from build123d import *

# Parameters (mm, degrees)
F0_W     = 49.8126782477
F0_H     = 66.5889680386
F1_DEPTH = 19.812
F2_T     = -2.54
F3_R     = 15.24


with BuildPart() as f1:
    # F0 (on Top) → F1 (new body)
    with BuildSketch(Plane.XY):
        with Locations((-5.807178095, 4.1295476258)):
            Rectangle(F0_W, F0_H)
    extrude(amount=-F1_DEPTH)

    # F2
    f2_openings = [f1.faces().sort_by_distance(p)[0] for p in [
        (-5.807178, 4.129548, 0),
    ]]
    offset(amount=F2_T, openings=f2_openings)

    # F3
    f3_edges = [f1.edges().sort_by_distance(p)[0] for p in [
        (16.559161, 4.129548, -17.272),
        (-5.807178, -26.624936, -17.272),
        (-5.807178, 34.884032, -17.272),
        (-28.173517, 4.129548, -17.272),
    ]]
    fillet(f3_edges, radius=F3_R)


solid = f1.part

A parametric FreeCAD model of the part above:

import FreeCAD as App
import Part
import Sketcher
from FreeCAD import Vector


def edges_at(feature, points):
    """Names of the edges that pass closest to the given points."""
    edges = feature.Shape.Edges
    near = lambda p: min(range(len(edges)), key=lambda i: edges[i].distToShape(Part.Vertex(*p))[0])
    return sorted({f"Edge{near(p) + 1}" for p in points})


def faces_at(feature, points):
    """Names of the faces that lie closest to the given points."""
    faces = feature.Shape.Faces
    near = lambda p: min(range(len(faces)), key=lambda i: faces[i].distToShape(Part.Vertex(*p))[0])
    return sorted({f"Face{near(p) + 1}" for p in points})


def add_polygon(sketch, points):
    """Adds a closed chain of lines whose ends are joined by coincident constraints."""
    first, n = sketch.GeometryCount, len(points)
    for a, b in zip(points, points[1:] + points[:1]):
        sketch.addGeometry(Part.LineSegment(App.Vector(*a, 0), App.Vector(*b, 0)), False)
    for i in range(n):
        sketch.addConstraint(Sketcher.Constraint("Coincident", first + i, 2, first + (i + 1) % n, 1))

doc = App.newDocument("Part")
params = doc.addObject("Spreadsheet::Sheet", "Params")
for row, (alias, value) in enumerate([
    ("pad1_length", "0.78 in"),
    ("thickness_wall", "0.1 in"),
    ("fillet_radius", "0.6 in"),
], start=1):
    params.set(f"A{row}", alias)
    params.set(f"B{row}", "=" + value)
    params.setAlias(f"B{row}", alias)

body = doc.addObject("PartDesign::Body", "Body")

# Sketch on XY plane
sketch1 = body.newObject("Sketcher::SketchObject", "Sketch")
sketch1.AttachmentSupport = (doc.getObject("XY_Plane"), [""])
sketch1.MapMode = "FlatFace"
add_polygon(sketch1, [(-31, 37), (-31, -29), (19, -29), (19, 37)])  # lines 0-3
sketch1.addConstraint(Sketcher.Constraint("Vertical", 0))
sketch1.addConstraint(Sketcher.Constraint("Horizontal", 1))
sketch1.addConstraint(Sketcher.Constraint("Vertical", 2))
sketch1.addConstraint(Sketcher.Constraint("Horizontal", 3))
sketch1.addConstraint(Sketcher.Constraint("DistanceX", 1, 1, 1, 2, 49.812678))
sketch1.addConstraint(Sketcher.Constraint("DistanceY", 0, 2, 0, 1, 66.588968))
sketch1.addConstraint(Sketcher.Constraint("DistanceX", -1, 1, 1, 2, 19.099161))
sketch1.addConstraint(Sketcher.Constraint("DistanceY", -1, 1, 2, 2, 37.424032))
pad1 = body.newObject("PartDesign::Pad", "Pad")
pad1.Profile = sketch1
pad1.setExpression("Length", "Params.pad1_length")
pad1.Reversed = True
doc.recompute()

thickness = body.newObject("PartDesign::Thickness", "Thickness")
thickness.Base = (pad1, faces_at(pad1, [(-5.807, 4.13, 0)]))
thickness.setExpression("Value", "Params.thickness_wall")
thickness.Reversed = True
thickness.Join = "Arc"
doc.recompute()

fillet = body.newObject("PartDesign::Fillet", "Fillet")
fillet.Base = (thickness, edges_at(thickness, [
    (16.559, 4.13, -17.272),
    (-5.807, -26.625, -17.272),
    (-5.807, 34.884, -17.272),
    (-28.174, 4.13, -17.272),
]))
fillet.setExpression("Radius", "Params.fillet_radius")

doc.recompute()
